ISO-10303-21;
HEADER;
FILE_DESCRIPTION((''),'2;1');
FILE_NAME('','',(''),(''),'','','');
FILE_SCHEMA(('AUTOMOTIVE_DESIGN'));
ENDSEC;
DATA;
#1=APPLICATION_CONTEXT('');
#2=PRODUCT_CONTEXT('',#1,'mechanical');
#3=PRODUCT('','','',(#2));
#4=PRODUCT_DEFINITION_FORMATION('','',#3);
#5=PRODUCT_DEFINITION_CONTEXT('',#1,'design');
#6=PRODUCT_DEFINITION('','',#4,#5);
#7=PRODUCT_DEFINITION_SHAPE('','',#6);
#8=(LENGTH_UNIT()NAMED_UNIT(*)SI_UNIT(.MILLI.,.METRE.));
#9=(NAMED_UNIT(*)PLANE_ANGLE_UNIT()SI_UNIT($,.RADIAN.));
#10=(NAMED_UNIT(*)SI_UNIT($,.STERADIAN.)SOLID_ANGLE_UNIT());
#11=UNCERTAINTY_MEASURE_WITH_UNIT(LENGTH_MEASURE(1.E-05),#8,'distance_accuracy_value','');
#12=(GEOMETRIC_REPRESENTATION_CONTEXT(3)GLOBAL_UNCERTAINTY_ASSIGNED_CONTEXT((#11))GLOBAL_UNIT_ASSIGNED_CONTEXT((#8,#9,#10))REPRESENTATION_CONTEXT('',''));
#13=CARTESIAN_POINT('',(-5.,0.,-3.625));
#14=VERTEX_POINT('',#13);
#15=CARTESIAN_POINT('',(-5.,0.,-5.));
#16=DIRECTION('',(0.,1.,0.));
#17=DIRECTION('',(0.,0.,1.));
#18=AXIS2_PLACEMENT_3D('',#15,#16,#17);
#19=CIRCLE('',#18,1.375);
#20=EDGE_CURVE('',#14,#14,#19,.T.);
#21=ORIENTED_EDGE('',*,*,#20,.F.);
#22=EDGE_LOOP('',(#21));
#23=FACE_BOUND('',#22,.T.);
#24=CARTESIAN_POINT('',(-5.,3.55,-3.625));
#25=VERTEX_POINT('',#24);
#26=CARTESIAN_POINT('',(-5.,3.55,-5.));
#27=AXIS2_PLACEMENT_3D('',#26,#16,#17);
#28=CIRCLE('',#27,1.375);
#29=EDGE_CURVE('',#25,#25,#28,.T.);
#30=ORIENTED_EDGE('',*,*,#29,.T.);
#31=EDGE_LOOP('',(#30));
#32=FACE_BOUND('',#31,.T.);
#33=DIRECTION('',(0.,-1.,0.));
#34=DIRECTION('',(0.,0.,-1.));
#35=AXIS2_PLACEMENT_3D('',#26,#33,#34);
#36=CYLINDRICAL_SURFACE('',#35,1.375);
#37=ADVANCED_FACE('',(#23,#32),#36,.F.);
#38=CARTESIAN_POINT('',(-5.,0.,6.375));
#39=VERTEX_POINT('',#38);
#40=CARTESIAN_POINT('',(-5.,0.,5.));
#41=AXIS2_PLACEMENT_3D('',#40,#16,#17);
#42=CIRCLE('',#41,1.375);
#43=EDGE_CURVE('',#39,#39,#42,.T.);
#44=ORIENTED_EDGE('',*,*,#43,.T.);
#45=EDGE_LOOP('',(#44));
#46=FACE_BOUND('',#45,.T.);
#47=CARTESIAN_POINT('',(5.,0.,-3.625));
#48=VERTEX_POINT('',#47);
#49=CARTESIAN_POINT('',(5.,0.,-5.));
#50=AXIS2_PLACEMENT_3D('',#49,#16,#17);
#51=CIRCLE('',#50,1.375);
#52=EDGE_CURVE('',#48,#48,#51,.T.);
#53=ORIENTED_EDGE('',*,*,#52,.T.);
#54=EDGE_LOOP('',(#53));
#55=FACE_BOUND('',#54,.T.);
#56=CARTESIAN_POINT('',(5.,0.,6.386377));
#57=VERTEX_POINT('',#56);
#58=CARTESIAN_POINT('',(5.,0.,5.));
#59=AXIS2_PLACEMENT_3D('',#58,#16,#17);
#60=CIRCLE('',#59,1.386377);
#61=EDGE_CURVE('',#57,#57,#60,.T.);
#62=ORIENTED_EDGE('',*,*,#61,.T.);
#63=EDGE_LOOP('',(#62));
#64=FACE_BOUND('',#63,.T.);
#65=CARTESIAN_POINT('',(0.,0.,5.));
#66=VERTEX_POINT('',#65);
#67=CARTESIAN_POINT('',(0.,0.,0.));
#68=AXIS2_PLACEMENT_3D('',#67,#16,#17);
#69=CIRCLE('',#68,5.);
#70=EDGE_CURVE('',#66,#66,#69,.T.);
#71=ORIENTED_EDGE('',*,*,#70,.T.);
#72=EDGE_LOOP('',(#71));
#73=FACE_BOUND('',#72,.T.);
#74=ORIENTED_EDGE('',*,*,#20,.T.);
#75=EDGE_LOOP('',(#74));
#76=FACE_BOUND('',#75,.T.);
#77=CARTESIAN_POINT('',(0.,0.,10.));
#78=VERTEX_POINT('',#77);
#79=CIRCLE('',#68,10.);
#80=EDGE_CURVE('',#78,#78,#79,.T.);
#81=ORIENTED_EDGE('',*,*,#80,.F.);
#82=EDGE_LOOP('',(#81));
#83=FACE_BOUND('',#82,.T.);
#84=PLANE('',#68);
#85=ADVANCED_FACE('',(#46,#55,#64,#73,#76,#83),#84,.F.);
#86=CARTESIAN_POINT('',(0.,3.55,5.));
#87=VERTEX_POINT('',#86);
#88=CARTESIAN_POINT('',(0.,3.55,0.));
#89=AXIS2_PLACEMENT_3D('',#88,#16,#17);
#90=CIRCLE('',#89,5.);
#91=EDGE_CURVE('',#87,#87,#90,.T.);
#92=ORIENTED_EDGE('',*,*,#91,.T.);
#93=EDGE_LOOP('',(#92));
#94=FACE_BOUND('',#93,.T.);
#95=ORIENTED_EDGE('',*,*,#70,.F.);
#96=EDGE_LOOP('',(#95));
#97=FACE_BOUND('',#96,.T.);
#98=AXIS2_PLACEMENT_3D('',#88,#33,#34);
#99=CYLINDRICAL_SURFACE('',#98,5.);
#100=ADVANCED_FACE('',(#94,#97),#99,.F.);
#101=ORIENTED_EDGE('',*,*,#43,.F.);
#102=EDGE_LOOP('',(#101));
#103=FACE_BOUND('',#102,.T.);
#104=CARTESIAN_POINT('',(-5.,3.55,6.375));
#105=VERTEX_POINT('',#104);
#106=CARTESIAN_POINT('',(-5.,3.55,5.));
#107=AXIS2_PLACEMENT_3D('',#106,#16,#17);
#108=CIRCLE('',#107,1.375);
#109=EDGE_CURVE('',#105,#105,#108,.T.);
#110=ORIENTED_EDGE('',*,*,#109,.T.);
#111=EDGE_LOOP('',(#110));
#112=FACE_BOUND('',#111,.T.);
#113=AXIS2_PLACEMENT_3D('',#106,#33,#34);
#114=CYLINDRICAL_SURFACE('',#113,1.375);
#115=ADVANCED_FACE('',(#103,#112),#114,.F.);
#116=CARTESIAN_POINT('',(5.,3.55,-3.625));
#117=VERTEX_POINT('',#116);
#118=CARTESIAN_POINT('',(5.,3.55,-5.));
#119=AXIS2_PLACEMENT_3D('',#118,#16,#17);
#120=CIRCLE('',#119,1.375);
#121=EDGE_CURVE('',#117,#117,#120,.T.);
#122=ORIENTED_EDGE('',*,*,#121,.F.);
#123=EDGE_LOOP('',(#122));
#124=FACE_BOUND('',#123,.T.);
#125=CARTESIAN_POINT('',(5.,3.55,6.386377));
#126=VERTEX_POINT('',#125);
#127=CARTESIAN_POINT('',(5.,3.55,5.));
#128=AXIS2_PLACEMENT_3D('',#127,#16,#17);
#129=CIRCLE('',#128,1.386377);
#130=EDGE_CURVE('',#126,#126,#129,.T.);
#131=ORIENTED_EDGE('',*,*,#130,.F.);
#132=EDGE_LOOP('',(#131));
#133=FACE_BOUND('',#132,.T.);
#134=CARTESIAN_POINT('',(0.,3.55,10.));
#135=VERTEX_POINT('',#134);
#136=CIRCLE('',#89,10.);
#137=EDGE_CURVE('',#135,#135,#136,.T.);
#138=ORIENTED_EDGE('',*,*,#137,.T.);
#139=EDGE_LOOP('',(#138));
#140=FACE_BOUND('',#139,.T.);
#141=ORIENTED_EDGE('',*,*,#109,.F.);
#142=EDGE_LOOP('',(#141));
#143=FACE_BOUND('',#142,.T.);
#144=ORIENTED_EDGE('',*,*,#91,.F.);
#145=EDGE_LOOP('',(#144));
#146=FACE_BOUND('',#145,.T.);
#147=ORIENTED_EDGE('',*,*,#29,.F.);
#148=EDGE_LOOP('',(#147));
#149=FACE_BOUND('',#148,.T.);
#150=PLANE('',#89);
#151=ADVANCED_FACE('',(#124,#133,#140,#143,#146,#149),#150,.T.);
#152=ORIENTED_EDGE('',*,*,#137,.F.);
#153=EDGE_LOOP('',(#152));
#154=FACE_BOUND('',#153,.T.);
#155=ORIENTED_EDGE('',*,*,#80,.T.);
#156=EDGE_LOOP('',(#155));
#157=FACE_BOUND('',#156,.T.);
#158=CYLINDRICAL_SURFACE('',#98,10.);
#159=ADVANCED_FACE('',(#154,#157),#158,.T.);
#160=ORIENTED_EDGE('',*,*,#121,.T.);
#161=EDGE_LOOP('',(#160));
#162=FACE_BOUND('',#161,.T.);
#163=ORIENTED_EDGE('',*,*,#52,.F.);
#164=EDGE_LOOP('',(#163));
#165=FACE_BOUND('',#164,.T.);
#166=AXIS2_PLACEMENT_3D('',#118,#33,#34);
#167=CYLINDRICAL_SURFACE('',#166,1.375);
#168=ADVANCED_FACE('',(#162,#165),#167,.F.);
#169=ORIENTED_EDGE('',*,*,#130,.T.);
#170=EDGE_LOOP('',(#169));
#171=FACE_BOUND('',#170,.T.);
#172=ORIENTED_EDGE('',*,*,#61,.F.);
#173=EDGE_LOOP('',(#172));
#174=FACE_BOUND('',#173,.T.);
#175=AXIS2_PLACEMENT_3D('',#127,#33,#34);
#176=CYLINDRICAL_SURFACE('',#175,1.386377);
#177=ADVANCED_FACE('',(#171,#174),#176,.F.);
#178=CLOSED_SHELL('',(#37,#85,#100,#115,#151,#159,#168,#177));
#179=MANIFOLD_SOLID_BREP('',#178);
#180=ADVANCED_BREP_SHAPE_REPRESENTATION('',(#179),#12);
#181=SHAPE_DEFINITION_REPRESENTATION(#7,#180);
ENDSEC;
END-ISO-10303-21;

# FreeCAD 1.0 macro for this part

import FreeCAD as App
import Part
import Sketcher
from FreeCAD import Vector
Q = App.Units.Quantity

doc = App.newDocument("Part")
body = doc.addObject("PartDesign::Body", "Body")

# Sketch on XZ plane
sketch1 = body.newObject("Sketcher::SketchObject", "Sketch")
sketch1.AttachmentSupport = (doc.getObject("XZ_Plane"), [""])
sketch1.MapMode = "FlatFace"
sketch1.addGeometry([
    Part.Circle(Vector(0, 0, 0), Vector(0, 0, 1), 10),  # 0
    Part.Circle(Vector(-5, -5, 0), Vector(0, 0, 1), 1.4),  # 1
    Part.Circle(Vector(0, 0, 0), Vector(0, 0, 1), 5),  # 2
    Part.Circle(Vector(-5, 5, 0), Vector(0, 0, 1), 1.4),  # 3
    Part.Circle(Vector(5, -5, 0), Vector(0, 0, 1), 1.4),  # 4
    Part.Circle(Vector(5, 5, 0), Vector(0, 0, 1), 1.4),  # 5
], False)
sketch1.addConstraint([
    Sketcher.Constraint("Coincident", 0, 3, -1, 1),
    Sketcher.Constraint("Coincident", 2, 3, -1, 1),
    Sketcher.Constraint("Equal", 1, 3),
    Sketcher.Constraint("Equal", 3, 4),
    Sketcher.Constraint("Symmetric", 3, 3, 4, 3, -1, 1),
    Sketcher.Constraint("Symmetric", 1, 3, 5, 3, -1, 1),
    Sketcher.Constraint("Symmetric", 1, 3, 4, 3, -2),
    Sketcher.Constraint("Diameter", 0, Q("20 mm")),
    Sketcher.Constraint("Diameter", 2, Q("10 mm")),
    Sketcher.Constraint("Diameter", 1, Q("2.75 mm")),
    Sketcher.Constraint("DistanceX", 1, 3, -1, 1, Q("5 mm")),
    Sketcher.Constraint("DistanceY", 1, 3, -1, 1, Q("5 mm")),
    Sketcher.Constraint("Diameter", 5, Q("2.772753 mm")),
])
pad1 = body.newObject("PartDesign::Pad", "Pad")
pad1.Profile = sketch1
pad1.Length = 3.55
pad1.Reversed = True

doc.recompute()
